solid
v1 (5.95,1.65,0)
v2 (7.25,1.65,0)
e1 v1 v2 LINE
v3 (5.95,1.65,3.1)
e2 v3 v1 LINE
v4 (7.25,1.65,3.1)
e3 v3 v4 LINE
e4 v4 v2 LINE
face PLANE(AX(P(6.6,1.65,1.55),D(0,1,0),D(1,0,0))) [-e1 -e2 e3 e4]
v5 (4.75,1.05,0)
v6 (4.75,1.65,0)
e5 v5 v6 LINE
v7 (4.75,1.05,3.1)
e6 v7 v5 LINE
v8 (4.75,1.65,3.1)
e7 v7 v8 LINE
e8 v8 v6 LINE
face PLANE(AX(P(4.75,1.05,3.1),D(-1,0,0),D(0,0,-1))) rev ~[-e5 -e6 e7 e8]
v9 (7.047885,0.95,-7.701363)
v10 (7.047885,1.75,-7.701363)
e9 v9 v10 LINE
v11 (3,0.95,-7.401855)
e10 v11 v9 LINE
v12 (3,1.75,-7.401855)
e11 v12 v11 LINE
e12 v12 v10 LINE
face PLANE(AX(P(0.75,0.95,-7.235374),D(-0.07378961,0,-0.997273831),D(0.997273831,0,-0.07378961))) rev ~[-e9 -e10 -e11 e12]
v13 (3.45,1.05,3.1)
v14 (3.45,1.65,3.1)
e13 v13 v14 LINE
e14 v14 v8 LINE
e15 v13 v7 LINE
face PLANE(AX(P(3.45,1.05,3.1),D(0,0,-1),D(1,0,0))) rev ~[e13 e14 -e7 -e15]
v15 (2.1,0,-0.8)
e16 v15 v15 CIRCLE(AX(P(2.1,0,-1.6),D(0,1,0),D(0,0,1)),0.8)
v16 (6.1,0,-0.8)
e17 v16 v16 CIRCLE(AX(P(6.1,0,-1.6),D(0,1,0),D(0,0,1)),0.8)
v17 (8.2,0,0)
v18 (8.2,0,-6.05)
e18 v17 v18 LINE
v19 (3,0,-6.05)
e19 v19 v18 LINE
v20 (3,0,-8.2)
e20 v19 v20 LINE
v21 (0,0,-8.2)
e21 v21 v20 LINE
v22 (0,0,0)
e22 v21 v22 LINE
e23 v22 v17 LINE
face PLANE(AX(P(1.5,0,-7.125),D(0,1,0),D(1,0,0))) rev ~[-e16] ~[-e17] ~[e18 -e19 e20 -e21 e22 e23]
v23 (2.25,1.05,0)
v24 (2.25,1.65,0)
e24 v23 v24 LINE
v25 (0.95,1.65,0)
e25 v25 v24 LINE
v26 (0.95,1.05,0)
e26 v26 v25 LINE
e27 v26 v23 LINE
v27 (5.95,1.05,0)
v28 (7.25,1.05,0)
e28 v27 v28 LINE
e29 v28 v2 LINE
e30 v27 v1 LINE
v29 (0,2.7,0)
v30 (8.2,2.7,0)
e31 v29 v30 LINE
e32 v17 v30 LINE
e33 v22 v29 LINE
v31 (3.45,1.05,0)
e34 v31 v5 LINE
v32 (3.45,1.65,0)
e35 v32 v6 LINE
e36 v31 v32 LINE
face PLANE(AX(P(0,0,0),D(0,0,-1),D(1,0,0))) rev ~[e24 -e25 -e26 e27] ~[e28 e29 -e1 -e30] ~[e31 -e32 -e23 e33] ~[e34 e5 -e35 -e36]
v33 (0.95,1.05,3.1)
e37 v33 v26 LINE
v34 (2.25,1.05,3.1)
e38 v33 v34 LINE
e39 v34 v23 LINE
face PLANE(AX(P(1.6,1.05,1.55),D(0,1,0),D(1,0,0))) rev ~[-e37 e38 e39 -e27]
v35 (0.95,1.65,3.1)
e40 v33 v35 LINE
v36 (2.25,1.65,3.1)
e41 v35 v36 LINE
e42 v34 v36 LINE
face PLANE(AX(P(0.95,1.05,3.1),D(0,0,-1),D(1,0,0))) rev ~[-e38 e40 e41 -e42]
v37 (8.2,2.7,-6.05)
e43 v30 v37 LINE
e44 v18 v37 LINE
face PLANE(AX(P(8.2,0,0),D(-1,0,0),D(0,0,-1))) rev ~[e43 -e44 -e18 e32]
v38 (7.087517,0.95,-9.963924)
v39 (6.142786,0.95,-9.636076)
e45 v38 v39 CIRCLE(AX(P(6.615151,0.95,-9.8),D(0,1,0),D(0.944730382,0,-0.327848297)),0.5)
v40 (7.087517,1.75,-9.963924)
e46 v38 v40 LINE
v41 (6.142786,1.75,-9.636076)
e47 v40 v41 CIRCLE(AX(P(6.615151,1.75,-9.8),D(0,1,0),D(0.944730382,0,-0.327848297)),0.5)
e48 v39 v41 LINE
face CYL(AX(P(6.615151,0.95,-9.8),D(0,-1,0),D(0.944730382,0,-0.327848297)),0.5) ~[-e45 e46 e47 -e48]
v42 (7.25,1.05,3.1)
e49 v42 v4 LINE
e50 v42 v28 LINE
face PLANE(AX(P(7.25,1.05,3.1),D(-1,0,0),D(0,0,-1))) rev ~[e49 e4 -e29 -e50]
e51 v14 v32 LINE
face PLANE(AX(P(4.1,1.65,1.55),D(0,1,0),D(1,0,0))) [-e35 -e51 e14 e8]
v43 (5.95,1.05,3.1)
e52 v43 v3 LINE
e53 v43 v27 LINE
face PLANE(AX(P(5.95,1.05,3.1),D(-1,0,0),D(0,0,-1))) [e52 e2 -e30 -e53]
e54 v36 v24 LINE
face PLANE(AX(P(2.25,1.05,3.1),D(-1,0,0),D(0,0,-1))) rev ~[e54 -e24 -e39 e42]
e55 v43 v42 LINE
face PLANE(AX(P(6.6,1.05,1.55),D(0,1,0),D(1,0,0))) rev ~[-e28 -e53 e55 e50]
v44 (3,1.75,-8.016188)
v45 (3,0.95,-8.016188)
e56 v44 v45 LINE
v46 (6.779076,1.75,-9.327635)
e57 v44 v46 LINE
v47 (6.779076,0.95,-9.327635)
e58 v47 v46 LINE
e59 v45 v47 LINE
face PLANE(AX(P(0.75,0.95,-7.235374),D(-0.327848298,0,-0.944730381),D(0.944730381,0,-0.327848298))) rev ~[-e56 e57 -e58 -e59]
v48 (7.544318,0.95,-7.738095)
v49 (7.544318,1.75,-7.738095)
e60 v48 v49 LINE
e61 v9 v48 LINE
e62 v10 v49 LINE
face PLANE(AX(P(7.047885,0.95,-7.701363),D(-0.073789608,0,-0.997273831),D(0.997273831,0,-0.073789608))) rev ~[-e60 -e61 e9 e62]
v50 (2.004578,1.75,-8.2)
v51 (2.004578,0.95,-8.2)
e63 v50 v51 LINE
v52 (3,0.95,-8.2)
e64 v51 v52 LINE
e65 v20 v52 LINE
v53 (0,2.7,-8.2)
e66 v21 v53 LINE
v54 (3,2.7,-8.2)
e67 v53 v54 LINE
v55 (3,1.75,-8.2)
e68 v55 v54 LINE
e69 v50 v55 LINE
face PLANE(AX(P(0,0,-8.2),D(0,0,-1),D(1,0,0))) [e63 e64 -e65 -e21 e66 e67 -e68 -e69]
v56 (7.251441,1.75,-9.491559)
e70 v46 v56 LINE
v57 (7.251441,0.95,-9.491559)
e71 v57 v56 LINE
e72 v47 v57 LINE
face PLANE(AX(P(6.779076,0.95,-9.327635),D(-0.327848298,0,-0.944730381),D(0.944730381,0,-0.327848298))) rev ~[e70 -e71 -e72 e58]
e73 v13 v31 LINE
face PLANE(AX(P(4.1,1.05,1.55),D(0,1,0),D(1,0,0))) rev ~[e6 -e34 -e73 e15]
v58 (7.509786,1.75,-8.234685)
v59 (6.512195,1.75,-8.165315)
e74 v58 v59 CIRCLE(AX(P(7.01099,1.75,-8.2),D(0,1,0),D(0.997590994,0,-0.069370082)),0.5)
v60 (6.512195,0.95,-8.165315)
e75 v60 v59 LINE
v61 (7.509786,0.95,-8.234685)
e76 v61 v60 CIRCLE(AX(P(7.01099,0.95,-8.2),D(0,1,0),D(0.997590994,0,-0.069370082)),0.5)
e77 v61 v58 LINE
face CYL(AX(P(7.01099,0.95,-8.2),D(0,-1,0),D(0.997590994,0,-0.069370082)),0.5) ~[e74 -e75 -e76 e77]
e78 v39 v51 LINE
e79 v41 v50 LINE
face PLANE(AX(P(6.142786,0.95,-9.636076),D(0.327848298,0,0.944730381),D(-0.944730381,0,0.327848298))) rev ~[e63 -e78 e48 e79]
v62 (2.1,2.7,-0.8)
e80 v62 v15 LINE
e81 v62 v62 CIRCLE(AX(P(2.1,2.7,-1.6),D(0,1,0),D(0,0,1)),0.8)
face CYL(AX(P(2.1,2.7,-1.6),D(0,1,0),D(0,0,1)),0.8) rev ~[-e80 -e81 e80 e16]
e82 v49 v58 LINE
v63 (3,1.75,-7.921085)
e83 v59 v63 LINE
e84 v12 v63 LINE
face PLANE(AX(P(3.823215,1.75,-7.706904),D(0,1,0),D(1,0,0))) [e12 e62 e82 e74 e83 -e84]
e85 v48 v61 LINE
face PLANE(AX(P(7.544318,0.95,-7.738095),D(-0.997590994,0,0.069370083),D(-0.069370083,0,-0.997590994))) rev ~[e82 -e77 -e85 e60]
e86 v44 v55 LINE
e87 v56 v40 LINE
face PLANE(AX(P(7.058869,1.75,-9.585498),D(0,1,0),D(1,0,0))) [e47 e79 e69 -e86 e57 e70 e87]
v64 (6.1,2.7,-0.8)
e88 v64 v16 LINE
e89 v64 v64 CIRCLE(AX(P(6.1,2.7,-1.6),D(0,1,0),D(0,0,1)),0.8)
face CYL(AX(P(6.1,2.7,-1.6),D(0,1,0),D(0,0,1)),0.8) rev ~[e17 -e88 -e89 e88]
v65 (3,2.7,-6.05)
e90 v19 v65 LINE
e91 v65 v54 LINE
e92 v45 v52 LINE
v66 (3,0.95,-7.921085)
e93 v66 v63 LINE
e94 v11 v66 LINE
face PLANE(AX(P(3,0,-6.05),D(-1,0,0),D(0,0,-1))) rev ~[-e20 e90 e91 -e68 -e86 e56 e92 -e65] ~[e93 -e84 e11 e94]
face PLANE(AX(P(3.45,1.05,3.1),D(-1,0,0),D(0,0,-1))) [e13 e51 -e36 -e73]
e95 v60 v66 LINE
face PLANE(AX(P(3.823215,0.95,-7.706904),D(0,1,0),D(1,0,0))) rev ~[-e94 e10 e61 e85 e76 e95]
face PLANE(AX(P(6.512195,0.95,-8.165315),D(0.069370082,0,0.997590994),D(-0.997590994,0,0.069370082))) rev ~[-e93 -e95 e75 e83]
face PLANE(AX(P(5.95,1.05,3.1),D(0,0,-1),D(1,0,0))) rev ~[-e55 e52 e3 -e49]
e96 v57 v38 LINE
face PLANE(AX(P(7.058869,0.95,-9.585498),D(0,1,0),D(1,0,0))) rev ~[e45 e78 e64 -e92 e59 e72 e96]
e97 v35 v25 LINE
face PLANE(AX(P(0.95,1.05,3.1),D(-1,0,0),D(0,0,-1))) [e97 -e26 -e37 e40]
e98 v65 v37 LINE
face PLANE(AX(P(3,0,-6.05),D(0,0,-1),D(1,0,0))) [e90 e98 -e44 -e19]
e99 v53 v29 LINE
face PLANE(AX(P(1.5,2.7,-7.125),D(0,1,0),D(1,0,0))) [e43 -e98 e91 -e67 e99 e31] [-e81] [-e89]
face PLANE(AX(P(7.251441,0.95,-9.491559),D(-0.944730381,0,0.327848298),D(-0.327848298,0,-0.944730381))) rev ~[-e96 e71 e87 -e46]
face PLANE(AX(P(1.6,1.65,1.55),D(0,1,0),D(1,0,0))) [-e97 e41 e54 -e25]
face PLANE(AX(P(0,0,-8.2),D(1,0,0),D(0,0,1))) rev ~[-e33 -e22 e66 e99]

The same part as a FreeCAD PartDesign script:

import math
import FreeCAD as App
import Part
import Sketcher
from FreeCAD import Vector
Q = App.Units.Quantity

doc = App.newDocument("Part")
body = doc.addObject("PartDesign::Body", "Body")

# Sketch on XZ plane
sketch1 = body.newObject("Sketcher::SketchObject", "Sketch")
sketch1.AttachmentSupport = (doc.getObject("XZ_Plane"), [""])
sketch1.MapMode = "FlatFace"
sketch1.addGeometry([
    Part.LineSegment(Vector(0, -8.2, 0), Vector(0, 0, 0)),  # 0
    Part.LineSegment(Vector(0, 0, 0), Vector(8.2, 0, 0)),  # 1
    Part.LineSegment(Vector(8.2, 0, 0), Vector(8.2, -6, 0)),  # 2
    Part.LineSegment(Vector(8.2, -6, 0), Vector(3, -6, 0)),  # 3
    Part.LineSegment(Vector(3, -6, 0), Vector(3, -8.2, 0)),  # 4
    Part.LineSegment(Vector(3, -8.2, 0), Vector(0, -8.2, 0)),  # 5
], False)
sketch1.addConstraint([
    Sketcher.Constraint("Coincident", 0, 2, 1, 1),
    Sketcher.Constraint("Coincident", 1, 2, 2, 1),
    Sketcher.Constraint("Coincident", 2, 2, 3, 1),
    Sketcher.Constraint("Coincident", 3, 2, 4, 1),
    Sketcher.Constraint("Coincident", 4, 2, 5, 1),
    Sketcher.Constraint("Coincident", 5, 2, 0, 1),
    Sketcher.Constraint("Vertical", 0),
    Sketcher.Constraint("Horizontal", 1),
    Sketcher.Constraint("Vertical", 2),
    Sketcher.Constraint("Horizontal", 3),
    Sketcher.Constraint("Vertical", 4),
    Sketcher.Constraint("Horizontal", 5),
    Sketcher.Constraint("Coincident", 0, 2, -1, 1),
    Sketcher.Constraint("Equal", 1, 0),
    Sketcher.Constraint("DistanceX", 5, 2, 5, 1, Q("3 mm")),
    Sketcher.Constraint("DistanceX", 1, 1, 1, 2, Q("8.2 mm")),
    Sketcher.Constraint("DistanceY", 2, 2, 2, 1, Q("6.05 mm")),
])
pad1 = body.newObject("PartDesign::Pad", "Pad")
pad1.Profile = sketch1
pad1.Length = 2.7
pad1.Reversed = True

# Sketch on XZ plane
sketch2 = body.newObject("Sketcher::SketchObject", "Sketch001")
sketch2.AttachmentSupport = (doc.getObject("XZ_Plane"), [""])
sketch2.MapMode = "FlatFace"
sketch2.AttachmentOffset = App.Placement(Vector(0, 0, -1.35), App.Rotation())
sketch2.addGeometry([
    Part.LineSegment(Vector(0.9, 0, 0), Vector(0.9, 3.1, 0)),  # 0
    Part.LineSegment(Vector(0.9, 3.1, 0), Vector(2.2, 3.1, 0)),  # 1
    Part.LineSegment(Vector(2.2, 3.1, 0), Vector(2.2, 0, 0)),  # 2
    Part.LineSegment(Vector(2.2, 0, 0), Vector(0.9, 0, 0)),  # 3
    Part.LineSegment(Vector(3.5, 0, 0), Vector(3.5, 3.1, 0)),  # 4
    Part.LineSegment(Vector(3.5, 3.1, 0), Vector(4.8, 3.1, 0)),  # 5
    Part.LineSegment(Vector(4.8, 3.1, 0), Vector(4.8, 0, 0)),  # 6
    Part.LineSegment(Vector(4.8, 0, 0), Vector(3.5, 0, 0)),  # 7
    Part.LineSegment(Vector(6, 0, 0), Vector(6, 3.1, 0)),  # 8
    Part.LineSegment(Vector(6, 3.1, 0), Vector(7.2, 3.1, 0)),  # 9
    Part.LineSegment(Vector(7.2, 3.1, 0), Vector(7.2, 0, 0)),  # 10
    Part.LineSegment(Vector(7.2, 0, 0), Vector(6, 0, 0)),  # 11
], False)
sketch2.addConstraint([
    Sketcher.Constraint("Coincident", 0, 2, 1, 1),
    Sketcher.Constraint("Coincident", 1, 2, 2, 1),
    Sketcher.Constraint("Coincident", 2, 2, 3, 1),
    Sketcher.Constraint("Coincident", 3, 2, 0, 1),
    Sketcher.Constraint("Coincident", 4, 2, 5, 1),
    Sketcher.Constraint("Coincident", 5, 2, 6, 1),
    Sketcher.Constraint("Coincident", 6, 2, 7, 1),
    Sketcher.Constraint("Coincident", 7, 2, 4, 1),
    Sketcher.Constraint("Coincident", 8, 2, 9, 1),
    Sketcher.Constraint("Coincident", 9, 2, 10, 1),
    Sketcher.Constraint("Coincident", 10, 2, 11, 1),
    Sketcher.Constraint("Coincident", 11, 2, 8, 1),
    Sketcher.Constraint("Vertical", 0),
    Sketcher.Constraint("Horizontal", 1),
    Sketcher.Constraint("Vertical", 2),
    Sketcher.Constraint("Horizontal", 3),
    Sketcher.Constraint("Vertical", 4),
    Sketcher.Constraint("Horizontal", 5),
    Sketcher.Constraint("Vertical", 6),
    Sketcher.Constraint("Horizontal", 7),
    Sketcher.Constraint("Vertical", 8),
    Sketcher.Constraint("Horizontal", 9),
    Sketcher.Constraint("Vertical", 10),
    Sketcher.Constraint("Horizontal", 11),
    Sketcher.Constraint("PointOnObject", 2, 2, -1),
    Sketcher.Constraint("PointOnObject", 6, 2, -1),
    Sketcher.Constraint("PointOnObject", 10, 2, -1),
    Sketcher.Constraint("Horizontal", 1, 2, 4, 2),
    Sketcher.Constraint("Horizontal", 5, 2, 8, 2),
    Sketcher.Constraint("Equal", 3, 5),
    Sketcher.Constraint("Equal", 7, 9),
    Sketcher.Constraint("DistanceX", 1, 1, 1, 2, Q("1.3 mm")),
    Sketcher.Constraint("DistanceY", 0, 1, 0, 2, Q("3.1 mm")),
    Sketcher.Constraint("DistanceX", 1, 2, 4, 2, Q("1.2 mm")),
    Sketcher.Constraint("DistanceX", 5, 2, 8, 2, Q("1.2 mm")),
    Sketcher.Constraint("DistanceX", -1, 1, 0, 2, Q("0.95 mm")),
])
pad2 = body.newObject("PartDesign::Pad", "Pad001")
pad2.Profile = sketch2
pad2.Type = "TwoLengths"
pad2.Length = 0.3
pad2.Length2 = 0.3
pad2.Reversed = True

# Sketch on XZ plane
sketch3 = body.newObject("Sketcher::SketchObject", "Sketch002")
sketch3.AttachmentSupport = (doc.getObject("XZ_Plane"), [""])
sketch3.MapMode = "FlatFace"
sketch3.AttachmentOffset = App.Placement(Vector(0, 0, -2.7), App.Rotation())
sketch3.addGeometry([
    Part.Circle(Vector(2.1, -1.6, 0), Vector(0, 0, 1), 0.8),
    Part.Circle(Vector(6.1, -1.6, 0), Vector(0, 0, 1), 0.8),
], False)
sketch3.addConstraint([
    Sketcher.Constraint("Equal", 0, 1),
    Sketcher.Constraint("Horizontal", 0, 3, 1, 3),
    Sketcher.Constraint("Diameter", 0, Q("1.6 mm")),
    Sketcher.Constraint("DistanceX", 0, 3, 1, 3, Q("4 mm")),
    Sketcher.Constraint("DistanceX", -1, 1, 0, 3, Q("2.1 mm")),
    Sketcher.Constraint("DistanceY", 0, 3, -1, 1, Q("1.6 mm")),
])
pocket1 = body.newObject("PartDesign::Pocket", "Pocket")
pocket1.Profile = sketch3
pocket1.Type = "ThroughAll"
pocket1.Reversed = True

# Sketch on XZ plane
sketch4 = body.newObject("Sketcher::SketchObject", "Sketch003")
sketch4.AttachmentSupport = (doc.getObject("XZ_Plane"), [""])
sketch4.MapMode = "FlatFace"
sketch4.AttachmentOffset = App.Placement(Vector(0, 0, -1.35), App.Rotation())
sketch4.addGeometry([
    Part.LineSegment(Vector(0.75, -7.76, 0), Vector(0.75, -7.24, 0)),  # 0
    Part.LineSegment(Vector(0.75, -7.24, 0), Vector(6.78, -9.33, 0)),  # 1
    Part.LineSegment(Vector(6.78, -9.33, 0), Vector(7.25, -9.49, 0)),  # 2
    Part.LineSegment(Vector(7.25, -9.49, 0), Vector(7.09, -9.96, 0)),  # 3
    Part.ArcOfCircle(Part.Circle(Vector(6.62, -9.8, 0), Vector(0, 0, 1), 0.5), math.radians(161), math.radians(341)),  # 4
    Part.LineSegment(Vector(6.14, -9.64, 0), Vector(0.75, -7.76, 0)),  # 5
], False)
sketch4.addConstraint([
    Sketcher.Constraint("Coincident", 0, 2, 1, 1),
    Sketcher.Constraint("Coincident", 1, 2, 2, 1),
    Sketcher.Constraint("Coincident", 2, 2, 3, 1),
    Sketcher.Constraint("Tangent", 3, 2, 4, 2),
    Sketcher.Constraint("Coincident", 4, 1, 5, 1),
    Sketcher.Constraint("Coincident", 5, 2, 0, 1),
    Sketcher.Constraint("Vertical", 0),
    Sketcher.Constraint("Parallel", 1, 2),
    Sketcher.Constraint("Perpendicular", 2, 3),
    Sketcher.Constraint("Perpendicular", 3, 5),
    Sketcher.Constraint("Equal", 2, 3),
    Sketcher.Constraint("Radius", 4, Q("0.5 mm")),
    Sketcher.Constraint("Distance", 2, Q("0.5 mm")),
    Sketcher.Constraint("DistanceY", 4, 3, -1, 1, Q("9.8 mm")),
    Sketcher.Constraint("DistanceX", -1, 1, 0, 2, Q("0.75 mm")),
    Sketcher.Constraint("DistanceY", 0, 1, 0, 2, Q("0.529252 mm")),
    Sketcher.Constraint("DistanceY", 4, 1, 0, 2, Q("2.400702 mm")),
    Sketcher.Constraint("DistanceY", 3, 2, 5, 2, Q("2.199298 mm")),
])
pad3 = body.newObject("PartDesign::Pad", "Pad002")
pad3.Profile = sketch4
pad3.Type = "TwoLengths"
pad3.Length = 0.4
pad3.Length2 = 0.4
pad3.Reversed = True

# Sketch on XZ plane
sketch5 = body.newObject("Sketcher::SketchObject", "Sketch004")
sketch5.AttachmentSupport = (doc.getObject("XZ_Plane"), [""])
sketch5.MapMode = "FlatFace"
sketch5.AttachmentOffset = App.Placement(Vector(0, 0, -1.35), App.Rotation())
sketch5.addGeometry([
    Part.LineSegment(Vector(7.54, -7.74, 0), Vector(7.51, -8.23, 0)),  # 0
    Part.ArcOfCircle(Part.Circle(Vector(7.01, -8.2, 0), Vector(0, 0, 1), 0.5), math.radians(176), math.radians(356)),  # 1
    Part.LineSegment(Vector(6.51, -8.17, 0), Vector(0.75, -7.76, 0)),  # 2
    Part.LineSegment(Vector(0.75, -7.76, 0), Vector(0.75, -7.24, 0)),  # 3
    Part.LineSegment(Vector(0.75, -7.24, 0), Vector(7.05, -7.7, 0)),  # 4
    Part.LineSegment(Vector(7.05, -7.7, 0), Vector(7.54, -7.74, 0)),  # 5
], False)
sketch5.addConstraint([
    Sketcher.Constraint("Tangent", 0, 2, 1, 2),
    Sketcher.Constraint("Coincident", 1, 1, 2, 1),
    Sketcher.Constraint("Coincident", 2, 2, 3, 1),
    Sketcher.Constraint("Coincident", 3, 2, 4, 1),
    Sketcher.Constraint("Coincident", 4, 2, 5, 1),
    Sketcher.Constraint("Coincident", 5, 2, 0, 1),
    Sketcher.Constraint("Vertical", 3),
    Sketcher.Constraint("Perpendicular", 0, 2),
    Sketcher.Constraint("Parallel", 4, 5),
    Sketcher.Constraint("Equal", 0, 5),
    Sketcher.Constraint("Radius", 1, Q("0.5 mm")),
    Sketcher.Constraint("DistanceY", 1, 3, -1, 1, Q("8.2 mm")),
    Sketcher.Constraint("DistanceX", -1, 1, 2, 2, Q("0.75 mm")),
    Sketcher.Constraint("Distance", 4, Q("6.315101 mm")),
    Sketcher.Constraint("DistanceY", 3, 1, 3, 2, Q("0.529252 mm")),
    Sketcher.Constraint("DistanceX", 4, 2, 0, 2, Q("0.461901 mm")),
    Sketcher.Constraint("Distance", 0, Q("0.497789 mm")),
    Sketcher.Constraint("DistanceX", -1, 1, 1, 3, Q("7.01099 mm")),
])
pad4 = body.newObject("PartDesign::Pad", "Pad003")
pad4.Profile = sketch5
pad4.Type = "TwoLengths"
pad4.Length = 0.4
pad4.Length2 = 0.4
pad4.Reversed = True

doc.recompute()
